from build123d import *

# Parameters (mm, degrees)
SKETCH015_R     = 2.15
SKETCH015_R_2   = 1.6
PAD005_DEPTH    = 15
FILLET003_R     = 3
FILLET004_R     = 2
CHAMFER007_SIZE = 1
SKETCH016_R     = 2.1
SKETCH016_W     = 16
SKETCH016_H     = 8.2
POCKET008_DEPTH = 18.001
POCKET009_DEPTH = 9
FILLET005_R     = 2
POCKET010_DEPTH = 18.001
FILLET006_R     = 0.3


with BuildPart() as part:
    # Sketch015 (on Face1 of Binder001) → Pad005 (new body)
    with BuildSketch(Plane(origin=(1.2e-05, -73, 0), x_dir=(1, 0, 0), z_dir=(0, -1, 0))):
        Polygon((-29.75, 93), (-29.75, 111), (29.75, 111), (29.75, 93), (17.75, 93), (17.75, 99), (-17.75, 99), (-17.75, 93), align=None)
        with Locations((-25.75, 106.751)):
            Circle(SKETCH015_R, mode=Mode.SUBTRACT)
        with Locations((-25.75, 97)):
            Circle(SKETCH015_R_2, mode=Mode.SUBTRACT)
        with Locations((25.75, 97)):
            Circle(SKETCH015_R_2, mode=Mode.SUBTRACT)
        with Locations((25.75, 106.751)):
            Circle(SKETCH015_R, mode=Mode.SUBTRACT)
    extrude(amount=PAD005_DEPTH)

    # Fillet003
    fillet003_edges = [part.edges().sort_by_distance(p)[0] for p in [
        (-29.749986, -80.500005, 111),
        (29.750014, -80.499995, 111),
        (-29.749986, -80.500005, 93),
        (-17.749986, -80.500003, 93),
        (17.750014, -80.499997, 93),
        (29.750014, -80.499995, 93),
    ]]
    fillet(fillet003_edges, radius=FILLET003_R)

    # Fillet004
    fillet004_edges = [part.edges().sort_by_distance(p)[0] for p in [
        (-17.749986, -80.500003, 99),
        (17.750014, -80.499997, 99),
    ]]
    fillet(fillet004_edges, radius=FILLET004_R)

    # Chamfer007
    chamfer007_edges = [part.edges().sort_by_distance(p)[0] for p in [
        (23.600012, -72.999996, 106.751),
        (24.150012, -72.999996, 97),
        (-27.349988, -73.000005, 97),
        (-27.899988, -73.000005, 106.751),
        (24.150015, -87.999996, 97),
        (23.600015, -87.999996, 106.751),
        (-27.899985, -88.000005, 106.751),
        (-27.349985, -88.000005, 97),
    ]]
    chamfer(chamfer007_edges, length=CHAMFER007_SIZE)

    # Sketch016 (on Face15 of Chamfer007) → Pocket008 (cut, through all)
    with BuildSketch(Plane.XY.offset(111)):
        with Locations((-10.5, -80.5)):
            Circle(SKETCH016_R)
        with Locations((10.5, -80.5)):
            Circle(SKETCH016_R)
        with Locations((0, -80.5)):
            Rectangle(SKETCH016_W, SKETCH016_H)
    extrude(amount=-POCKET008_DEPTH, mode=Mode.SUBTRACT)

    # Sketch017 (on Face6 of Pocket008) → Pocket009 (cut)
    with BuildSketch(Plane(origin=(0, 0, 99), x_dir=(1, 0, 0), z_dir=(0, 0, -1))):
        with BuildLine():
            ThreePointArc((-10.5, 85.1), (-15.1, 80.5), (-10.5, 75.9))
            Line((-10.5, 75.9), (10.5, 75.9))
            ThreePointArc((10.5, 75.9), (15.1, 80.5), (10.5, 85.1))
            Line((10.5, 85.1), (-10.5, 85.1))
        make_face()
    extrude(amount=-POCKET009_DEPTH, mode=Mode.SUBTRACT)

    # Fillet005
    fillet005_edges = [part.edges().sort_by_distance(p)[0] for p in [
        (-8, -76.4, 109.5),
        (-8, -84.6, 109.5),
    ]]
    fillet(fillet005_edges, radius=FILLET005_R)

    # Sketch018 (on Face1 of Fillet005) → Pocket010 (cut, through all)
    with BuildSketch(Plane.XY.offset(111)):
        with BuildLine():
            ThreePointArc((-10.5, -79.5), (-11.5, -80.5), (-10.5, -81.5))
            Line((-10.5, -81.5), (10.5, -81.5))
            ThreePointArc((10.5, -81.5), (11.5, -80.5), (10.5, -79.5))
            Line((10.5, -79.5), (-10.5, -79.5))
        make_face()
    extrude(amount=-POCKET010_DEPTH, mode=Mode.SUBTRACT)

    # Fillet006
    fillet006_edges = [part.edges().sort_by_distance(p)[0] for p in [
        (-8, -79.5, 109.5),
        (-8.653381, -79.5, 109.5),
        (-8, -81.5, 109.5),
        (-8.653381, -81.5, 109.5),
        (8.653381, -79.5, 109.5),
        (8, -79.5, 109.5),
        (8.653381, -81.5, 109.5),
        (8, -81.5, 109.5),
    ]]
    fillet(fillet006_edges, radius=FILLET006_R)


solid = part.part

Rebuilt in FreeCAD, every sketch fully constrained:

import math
import FreeCAD as App
import Part
import Sketcher
from FreeCAD import Vector


def edges_at(feature, points):
    """Names of the edges that pass closest to the given points."""
    edges = feature.Shape.Edges
    near = lambda p: min(range(len(edges)), key=lambda i: edges[i].distToShape(Part.Vertex(*p))[0])
    return sorted({f"Edge{near(p) + 1}" for p in points})


def add_polygon(sketch, points):
    """Adds a closed chain of lines whose ends are joined by coincident constraints."""
    first, n = sketch.GeometryCount, len(points)
    for a, b in zip(points, points[1:] + points[:1]):
        sketch.addGeometry(Part.LineSegment(App.Vector(*a, 0), App.Vector(*b, 0)), False)
    for i in range(n):
        sketch.addConstraint(Sketcher.Constraint("Coincident", first + i, 2, first + (i + 1) % n, 1))

doc = App.newDocument("Part")
body = doc.addObject("PartDesign::Body", "Body")

# Sketch on XZ plane
sketch1 = doc.addObject("Sketcher::SketchObject", "Sketch")
body.addObject(sketch1)
sketch1.AttachmentSupport = (doc.XZ_Plane, [""])
sketch1.MapMode = "FlatFace"
sketch1.AttachmentOffset = App.Placement(Vector(0, 0, 73), App.Rotation())
add_polygon(sketch1, [(-29.7, 111), (-29.7, 93), (-17.7, 93), (-17.7, 99), (17.8, 99), (17.8, 93), (29.8, 93), (29.8, 111)])  # lines 0-7
sketch1.addGeometry(Part.Circle(Vector(25.8, 97, 0), Vector(0, 0, 1), 1.6), False)  # 8
sketch1.addGeometry(Part.Circle(Vector(-25.7, 97, 0), Vector(0, 0, 1), 1.6), False)  # 9
sketch1.addGeometry(Part.Circle(Vector(25.8, 106.8, 0), Vector(0, 0, 1), 2.1), False)  # 10
sketch1.addGeometry(Part.Circle(Vector(-25.7, 106.8, 0), Vector(0, 0, 1), 2.1), False)  # 11
sketch1.addConstraint(Sketcher.Constraint("Vertical", 0))
sketch1.addConstraint(Sketcher.Constraint("Horizontal", 1))
sketch1.addConstraint(Sketcher.Constraint("Vertical", 2))
sketch1.addConstraint(Sketcher.Constraint("Horizontal", 3))
sketch1.addConstraint(Sketcher.Constraint("Vertical", 4))
sketch1.addConstraint(Sketcher.Constraint("Horizontal", 5))
sketch1.addConstraint(Sketcher.Constraint("Vertical", 6))
sketch1.addConstraint(Sketcher.Constraint("Horizontal", 7))
sketch1.addConstraint(Sketcher.Constraint("Equal", 8, 9))
sketch1.addConstraint(Sketcher.Constraint("Equal", 10, 11))
sketch1.addConstraint(Sketcher.Constraint("Horizontal", 8, 3, 9, 3))
sketch1.addConstraint(Sketcher.Constraint("Horizontal", 10, 3, 11, 3))
sketch1.addConstraint(Sketcher.Constraint("Horizontal", 1, 2, 4, 2))
sketch1.addConstraint(Sketcher.Constraint("Vertical", 8, 3, 10, 3))
sketch1.addConstraint(Sketcher.Constraint("Vertical", 9, 3, 11, 3))
sketch1.addConstraint(Sketcher.Constraint("Equal", 1, 5))
sketch1.addConstraint(Sketcher.Constraint("Diameter", 8, 3.2))
sketch1.addConstraint(Sketcher.Constraint("Diameter", 10, 4.3))
sketch1.addConstraint(Sketcher.Constraint("DistanceX", 1, 1, 1, 2, 12.0))
sketch1.addConstraint(Sketcher.Constraint("DistanceY", 0, 2, 0, 1, 18.0))
sketch1.addConstraint(Sketcher.Constraint("DistanceY", 2, 1, 2, 2, 6.0))
sketch1.addConstraint(Sketcher.Constraint("DistanceX", 3, 1, 3, 2, 35.5))
sketch1.addConstraint(Sketcher.Constraint("DistanceY", -1, 1, 8, 3, 97.0))
sketch1.addConstraint(Sketcher.Constraint("DistanceY", -1, 1, 0, 2, 93.0))
sketch1.addConstraint(Sketcher.Constraint("DistanceX", 0, 2, 9, 3, 4.0))
sketch1.addConstraint(Sketcher.Constraint("DistanceX", 3, 2, 8, 3, 8.0))
sketch1.addConstraint(Sketcher.Constraint("DistanceY", -1, 1, 10, 3, 106.751))
sketch1.addConstraint(Sketcher.Constraint("DistanceX", -1, 1, 8, 3, 25.750012))
pad1 = doc.addObject("PartDesign::Pad", "Pad")
body.addObject(pad1)
pad1.Profile = sketch1
pad1.Length = 15
doc.recompute()

fillet = doc.addObject("PartDesign::Fillet", "Fillet")
body.addObject(fillet)
fillet.Base = (pad1, edges_at(pad1, [
    (-29.75, -80.5, 111),
    (29.75, -80.5, 111),
    (-29.75, -80.5, 93),
    (-17.75, -80.5, 93),
    (17.75, -80.5, 93),
    (29.75, -80.5, 93),
]))
fillet.Radius = 3
doc.recompute()

fillet2 = doc.addObject("PartDesign::Fillet", "Fillet001")
body.addObject(fillet2)
fillet2.Base = (fillet, edges_at(fillet, [(-17.75, -80.5, 99), (17.75, -80.5, 99)]))
fillet2.Radius = 2
doc.recompute()

chamfer = doc.addObject("PartDesign::Chamfer", "Chamfer")
body.addObject(chamfer)
chamfer.Base = (fillet2, edges_at(fillet2, [
    (23.6, -73, 106.751),
    (24.15, -73, 97),
    (-27.35, -73, 97),
    (-27.9, -73, 106.751),
    (24.15, -88, 97),
    (23.6, -88, 106.751),
    (-27.9, -88, 106.751),
    (-27.35, -88, 97),
]))
chamfer.Size = 1

# Sketch on XY plane
sketch2 = doc.addObject("Sketcher::SketchObject", "Sketch001")
body.addObject(sketch2)
sketch2.AttachmentSupport = (doc.XY_Plane, [""])
sketch2.MapMode = "FlatFace"
sketch2.AttachmentOffset = App.Placement(Vector(0, 0, 111), App.Rotation())
sketch2.addGeometry(Part.Circle(Vector(-10.5, -80.5, 0), Vector(0, 0, 1), 2.1), False)  # 0
sketch2.addGeometry(Part.Circle(Vector(10.5, -80.5, 0), Vector(0, 0, 1), 2.1), False)  # 1
add_polygon(sketch2, [(-8, -76.4), (-8, -84.6), (8, -84.6), (8, -76.4)])  # lines 2-5
sketch2.addConstraint(Sketcher.Constraint("Vertical", 2))
sketch2.addConstraint(Sketcher.Constraint("Horizontal", 3))
sketch2.addConstraint(Sketcher.Constraint("Vertical", 4))
sketch2.addConstraint(Sketcher.Constraint("Horizontal", 5))
sketch2.addConstraint(Sketcher.Constraint("Equal", 0, 1))
sketch2.addConstraint(Sketcher.Constraint("Symmetric", 0, 3, 1, 3, -2))
sketch2.addConstraint(Sketcher.Constraint("Diameter", 0, 4.2))
sketch2.addConstraint(Sketcher.Constraint("DistanceX", 3, 1, 3, 2, 16.0))
sketch2.addConstraint(Sketcher.Constraint("DistanceY", 2, 2, 2, 1, 8.2))
sketch2.addConstraint(Sketcher.Constraint("DistanceX", 2, 2, -1, 1, 8.0))
sketch2.addConstraint(Sketcher.Constraint("DistanceX", 0, 3, 1, 3, 21.0))
sketch2.addConstraint(Sketcher.Constraint("DistanceY", 0, 3, -1, 1, 80.5))
sketch2.addConstraint(Sketcher.Constraint("DistanceY", 2, 2, -1, 1, 84.6))
pocket1 = doc.addObject("PartDesign::Pocket", "Pocket")
body.addObject(pocket1)
pocket1.Profile = sketch2
pocket1.Type = "ThroughAll"

# Sketch on XY plane
sketch3 = doc.addObject("Sketcher::SketchObject", "Sketch002")
body.addObject(sketch3)
sketch3.AttachmentSupport = (doc.XY_Plane, [""])
sketch3.MapMode = "FlatFace"
sketch3.AttachmentOffset = App.Placement(Vector(0, 0, 99), App.Rotation())
sketch3.addGeometry(Part.ArcOfCircle(Part.Circle(Vector(-10.5, -80.5, 0), Vector(0, 0, 1), 4.6), math.radians(90), math.radians(270)), False)
sketch3.addGeometry(Part.LineSegment(Vector(-10.5, -75.9, 0), Vector(10.5, -75.9, 0)), False)
sketch3.addGeometry(Part.ArcOfCircle(Part.Circle(Vector(10.5, -80.5, 0), Vector(0, 0, 1), 4.6), math.radians(-90), math.radians(90)), False)
sketch3.addGeometry(Part.LineSegment(Vector(10.5, -85.1, 0), Vector(-10.5, -85.1, 0)), False)
sketch3.addConstraint(Sketcher.Constraint("Tangent", 0, 1, 1, 1))
sketch3.addConstraint(Sketcher.Constraint("Tangent", 1, 2, 2, 2))
sketch3.addConstraint(Sketcher.Constraint("Tangent", 2, 1, 3, 1))
sketch3.addConstraint(Sketcher.Constraint("Tangent", 3, 2, 0, 2))
sketch3.addConstraint(Sketcher.Constraint("Horizontal", 1))
sketch3.addConstraint(Sketcher.Constraint("Horizontal", 3))
sketch3.addConstraint(Sketcher.Constraint("Radius", 0, 4.6))
sketch3.addConstraint(Sketcher.Constraint("DistanceX", 1, 1, 1, 2, 21.0))
sketch3.addConstraint(Sketcher.Constraint("DistanceX", 0, 3, -1, 1, 10.5))
sketch3.addConstraint(Sketcher.Constraint("DistanceY", 0, 3, -1, 1, 80.5))
pocket2 = doc.addObject("PartDesign::Pocket", "Pocket001")
body.addObject(pocket2)
pocket2.Profile = sketch3
pocket2.Length = 9
pocket2.Reversed = True
doc.recompute()

fillet3 = doc.addObject("PartDesign::Fillet", "Fillet002")
body.addObject(fillet3)
fillet3.Base = (pocket2, edges_at(pocket2, [(-8, -76.4, 109.5), (-8, -84.6, 109.5)]))
fillet3.Radius = 2

# Sketch on XY plane
sketch4 = doc.addObject("Sketcher::SketchObject", "Sketch003")
body.addObject(sketch4)
sketch4.AttachmentSupport = (doc.XY_Plane, [""])
sketch4.MapMode = "FlatFace"
sketch4.AttachmentOffset = App.Placement(Vector(0, 0, 111), App.Rotation())
sketch4.addGeometry(Part.ArcOfCircle(Part.Circle(Vector(-10.5, -80.5, 0), Vector(0, 0, 1), 1), math.radians(90), math.radians(270)), False)
sketch4.addGeometry(Part.LineSegment(Vector(-10.5, -81.5, 0), Vector(10.5, -81.5, 0)), False)
sketch4.addGeometry(Part.ArcOfCircle(Part.Circle(Vector(10.5, -80.5, 0), Vector(0, 0, 1), 1), math.radians(-90), math.radians(90)), False)
sketch4.addGeometry(Part.LineSegment(Vector(10.5, -79.5, 0), Vector(-10.5, -79.5, 0)), False)
sketch4.addConstraint(Sketcher.Constraint("Tangent", 0, 2, 1, 1))
sketch4.addConstraint(Sketcher.Constraint("Tangent", 1, 2, 2, 1))
sketch4.addConstraint(Sketcher.Constraint("Tangent", 2, 2, 3, 1))
sketch4.addConstraint(Sketcher.Constraint("Tangent", 3, 2, 0, 1))
sketch4.addConstraint(Sketcher.Constraint("Horizontal", 1))
sketch4.addConstraint(Sketcher.Constraint("Horizontal", 3))
sketch4.addConstraint(Sketcher.Constraint("Radius", 0, 1.0))
sketch4.addConstraint(Sketcher.Constraint("DistanceX", 1, 1, 1, 2, 21.0))
sketch4.addConstraint(Sketcher.Constraint("DistanceX", 0, 3, -1, 1, 10.5))
sketch4.addConstraint(Sketcher.Constraint("DistanceY", 0, 3, -1, 1, 80.5))
pocket3 = doc.addObject("PartDesign::Pocket", "Pocket002")
body.addObject(pocket3)
pocket3.Profile = sketch4
pocket3.Type = "ThroughAll"
doc.recompute()

fillet4 = doc.addObject("PartDesign::Fillet", "Fillet003")
body.addObject(fillet4)
fillet4.Base = (pocket3, edges_at(pocket3, [
    (-8, -79.5, 109.5),
    (-8.653, -79.5, 109.5),
    (-8, -81.5, 109.5),
    (-8.653, -81.5, 109.5),
    (8.653, -79.5, 109.5),
    (8, -79.5, 109.5),
    (8.653, -81.5, 109.5),
    (8, -81.5, 109.5),
]))
fillet4.Radius = 0.3

doc.recompute()
